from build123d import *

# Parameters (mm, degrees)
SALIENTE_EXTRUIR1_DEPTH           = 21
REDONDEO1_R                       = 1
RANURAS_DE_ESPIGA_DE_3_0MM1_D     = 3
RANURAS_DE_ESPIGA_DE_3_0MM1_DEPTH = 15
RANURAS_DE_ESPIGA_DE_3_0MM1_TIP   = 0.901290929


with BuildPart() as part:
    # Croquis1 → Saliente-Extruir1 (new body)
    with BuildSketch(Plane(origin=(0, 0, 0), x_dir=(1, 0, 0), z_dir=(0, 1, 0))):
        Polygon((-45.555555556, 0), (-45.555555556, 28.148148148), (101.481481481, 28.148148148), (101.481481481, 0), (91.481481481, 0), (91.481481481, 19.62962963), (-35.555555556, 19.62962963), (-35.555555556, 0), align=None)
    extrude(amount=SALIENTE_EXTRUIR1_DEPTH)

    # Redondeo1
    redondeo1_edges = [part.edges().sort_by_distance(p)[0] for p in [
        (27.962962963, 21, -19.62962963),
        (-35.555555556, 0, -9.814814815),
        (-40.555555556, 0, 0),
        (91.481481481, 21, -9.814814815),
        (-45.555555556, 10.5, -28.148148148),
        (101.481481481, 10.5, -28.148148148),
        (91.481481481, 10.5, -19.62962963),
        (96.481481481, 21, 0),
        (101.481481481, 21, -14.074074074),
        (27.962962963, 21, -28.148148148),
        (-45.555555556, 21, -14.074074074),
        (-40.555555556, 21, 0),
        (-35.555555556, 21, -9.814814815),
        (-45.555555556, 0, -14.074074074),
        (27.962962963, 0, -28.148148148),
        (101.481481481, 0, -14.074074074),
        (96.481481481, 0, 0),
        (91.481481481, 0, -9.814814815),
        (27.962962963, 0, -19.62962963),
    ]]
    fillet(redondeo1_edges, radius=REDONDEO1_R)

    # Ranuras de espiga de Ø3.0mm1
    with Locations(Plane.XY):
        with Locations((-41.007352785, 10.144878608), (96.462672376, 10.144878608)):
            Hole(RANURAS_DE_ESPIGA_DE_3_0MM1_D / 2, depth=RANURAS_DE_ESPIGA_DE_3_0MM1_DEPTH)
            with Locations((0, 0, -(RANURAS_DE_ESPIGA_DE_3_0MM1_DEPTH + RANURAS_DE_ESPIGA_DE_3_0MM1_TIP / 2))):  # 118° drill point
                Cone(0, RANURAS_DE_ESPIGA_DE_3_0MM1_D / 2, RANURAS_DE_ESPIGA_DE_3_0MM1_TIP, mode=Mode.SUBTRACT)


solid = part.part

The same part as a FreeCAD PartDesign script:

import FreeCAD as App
import Part
import Sketcher
Q = App.Units.Quantity


def edges_at(feature, points):
    """Names of the edges that pass closest to the given points."""
    edges = feature.Shape.Edges
    near = lambda p: min(range(len(edges)), key=lambda i: edges[i].distToShape(Part.Vertex(*p))[0])
    return sorted({f"Edge{near(p) + 1}" for p in points})

doc = App.newDocument("Part")
params = doc.addObject("Spreadsheet::Sheet", "Params")
for row, (alias, value) in enumerate([
    ("sketch1_width", "10 mm"),
    ("pad1_length", "21 mm"),
    ("fillet_radius", "1 mm"),
    ("sketch2_diameter", "3 mm"),
    ("hole_diameter", "3 mm"),
    ("hole_depth", "15 mm"),
], start=1):
    params.set(f"A{row}", alias)
    params.set(f"B{row}", "=" + value)
    params.setAlias(f"B{row}", alias)

body = doc.addObject("PartDesign::Body", "Body")

# Sketch on XZ plane
sketch1 = doc.addObject("Sketcher::SketchObject", "Sketch")
body.addObject(sketch1)
sketch1.AttachmentSupport = (doc.XZ_Plane, [""])
sketch1.MapMode = "FlatFace"
sketch1.addGeometry(Part.LineSegment(App.Vector(-46, -28, 0), App.Vector(-46, 0, 0)), False)
sketch1.addGeometry(Part.LineSegment(App.Vector(-46, 0, 0), App.Vector(-36, 0, 0)), False)
sketch1.addGeometry(Part.LineSegment(App.Vector(-36, 0, 0), App.Vector(-36, -20, 0)), False)
sketch1.addGeometry(Part.LineSegment(App.Vector(-36, -20, 0), App.Vector(91, -20, 0)), False)
sketch1.addGeometry(Part.LineSegment(App.Vector(91, -20, 0), App.Vector(91, 0, 0)), False)
sketch1.addGeometry(Part.LineSegment(App.Vector(91, 0, 0), App.Vector(101, 0, 0)), False)
sketch1.addGeometry(Part.LineSegment(App.Vector(101, 0, 0), App.Vector(101, -28, 0)), False)
sketch1.addGeometry(Part.LineSegment(App.Vector(101, -28, 0), App.Vector(-46, -28, 0)), False)
sketch1.addConstraint(Sketcher.Constraint("Coincident", 0, 2, 1, 1))
sketch1.addConstraint(Sketcher.Constraint("Coincident", 1, 2, 2, 1))
sketch1.addConstraint(Sketcher.Constraint("Coincident", 2, 2, 3, 1))
sketch1.addConstraint(Sketcher.Constraint("Coincident", 3, 2, 4, 1))
sketch1.addConstraint(Sketcher.Constraint("Coincident", 4, 2, 5, 1))
sketch1.addConstraint(Sketcher.Constraint("Coincident", 5, 2, 6, 1))
sketch1.addConstraint(Sketcher.Constraint("Coincident", 6, 2, 7, 1))
sketch1.addConstraint(Sketcher.Constraint("Coincident", 7, 2, 0, 1))
sketch1.addConstraint(Sketcher.Constraint("Vertical", 0))
sketch1.addConstraint(Sketcher.Constraint("Horizontal", 1))
sketch1.addConstraint(Sketcher.Constraint("Vertical", 2))
sketch1.addConstraint(Sketcher.Constraint("Horizontal", 3))
sketch1.addConstraint(Sketcher.Constraint("Vertical", 4))
sketch1.addConstraint(Sketcher.Constraint("Horizontal", 5))
sketch1.addConstraint(Sketcher.Constraint("Vertical", 6))
sketch1.addConstraint(Sketcher.Constraint("Horizontal", 7))
sketch1.addConstraint(Sketcher.Constraint("PointOnObject", 0, 2, -1))
sketch1.addConstraint(Sketcher.Constraint("PointOnObject", 4, 2, -1))
sketch1.addConstraint(Sketcher.Constraint("Equal", 1, 5))
sketch1.addConstraint(Sketcher.Constraint("DistanceX", 1, 1, 1, 2, Q("10 mm")))
sketch1.addConstraint(Sketcher.Constraint("DistanceY", 0, 1, 0, 2, Q("28.148148 mm")))
sketch1.addConstraint(Sketcher.Constraint("DistanceY", 2, 2, 2, 1, Q("19.62963 mm")))
sketch1.addConstraint(Sketcher.Constraint("DistanceX", 3, 1, 3, 2, Q("127.037037 mm")))
sketch1.addConstraint(Sketcher.Constraint("DistanceX", -1, 1, 3, 2, Q("91.481481 mm")))
sketch1.setExpression("Constraints[19]", "Params.sketch1_width")
pad1 = doc.addObject("PartDesign::Pad", "Pad")
body.addObject(pad1)
pad1.Profile = sketch1
pad1.setExpression("Length", "Params.pad1_length")
pad1.Reversed = True
doc.recompute()

fillet = doc.addObject("PartDesign::Fillet", "Fillet")
body.addObject(fillet)
fillet.Base = (pad1, edges_at(pad1, [
    (27.963, 21, -19.63),
    (-35.556, 0, -9.815),
    (-40.556, 0, 0),
    (91.481, 21, -9.815),
    (-45.556, 10.5, -28.148),
    (101.481, 10.5, -28.148),
    (91.481, 10.5, -19.63),
    (96.481, 21, 0),
    (101.481, 21, -14.074),
    (27.963, 21, -28.148),
    (-45.556, 21, -14.074),
    (-40.556, 21, 0),
    (-35.556, 21, -9.815),
    (-45.556, 0, -14.074),
    (27.963, 0, -28.148),
    (101.481, 0, -14.074),
    (96.481, 0, 0),
    (91.481, 0, -9.815),
    (27.963, 0, -19.63),
]))
fillet.setExpression("Radius", "Params.fillet_radius")

# Sketch on XY plane
sketch2 = doc.addObject("Sketcher::SketchObject", "Sketch001")
body.addObject(sketch2)
sketch2.AttachmentSupport = (doc.XY_Plane, [""])
sketch2.MapMode = "FlatFace"
sketch2.addGeometry(Part.Circle(App.Vector(-41, 10.1, 0), App.Vector(0, 0, 1), 1.5), False)
sketch2.addGeometry(Part.Circle(App.Vector(96.5, 10.1, 0), App.Vector(0, 0, 1), 1.5), False)
sketch2.addConstraint(Sketcher.Constraint("Equal", 0, 1))
sketch2.addConstraint(Sketcher.Constraint("Horizontal", 0, 3, 1, 3))
sketch2.addConstraint(Sketcher.Constraint("Diameter", 0, Q("3 mm")))
sketch2.addConstraint(Sketcher.Constraint("DistanceY", -1, 1, 0, 3, Q("10.144879 mm")))
sketch2.addConstraint(Sketcher.Constraint("DistanceX", 0, 3, -1, 1, Q("41.007353 mm")))
sketch2.addConstraint(Sketcher.Constraint("DistanceX", -1, 1, 1, 3, Q("96.462672 mm")))
sketch2.setExpression("Constraints[2]", "Params.sketch2_diameter")
doc.recompute()
hole = doc.addObject("PartDesign::Hole", "Hole")
body.addObject(hole)
hole.Profile = sketch2
hole.ThreadType = "None"
hole.setExpression("Diameter", "Params.hole_diameter")
hole.DepthType = "Dimension"
hole.setExpression("Depth", "Params.hole_depth")
hole.DrillPoint = "Angled"
hole.DrillPointAngle = 118

doc.recompute()
